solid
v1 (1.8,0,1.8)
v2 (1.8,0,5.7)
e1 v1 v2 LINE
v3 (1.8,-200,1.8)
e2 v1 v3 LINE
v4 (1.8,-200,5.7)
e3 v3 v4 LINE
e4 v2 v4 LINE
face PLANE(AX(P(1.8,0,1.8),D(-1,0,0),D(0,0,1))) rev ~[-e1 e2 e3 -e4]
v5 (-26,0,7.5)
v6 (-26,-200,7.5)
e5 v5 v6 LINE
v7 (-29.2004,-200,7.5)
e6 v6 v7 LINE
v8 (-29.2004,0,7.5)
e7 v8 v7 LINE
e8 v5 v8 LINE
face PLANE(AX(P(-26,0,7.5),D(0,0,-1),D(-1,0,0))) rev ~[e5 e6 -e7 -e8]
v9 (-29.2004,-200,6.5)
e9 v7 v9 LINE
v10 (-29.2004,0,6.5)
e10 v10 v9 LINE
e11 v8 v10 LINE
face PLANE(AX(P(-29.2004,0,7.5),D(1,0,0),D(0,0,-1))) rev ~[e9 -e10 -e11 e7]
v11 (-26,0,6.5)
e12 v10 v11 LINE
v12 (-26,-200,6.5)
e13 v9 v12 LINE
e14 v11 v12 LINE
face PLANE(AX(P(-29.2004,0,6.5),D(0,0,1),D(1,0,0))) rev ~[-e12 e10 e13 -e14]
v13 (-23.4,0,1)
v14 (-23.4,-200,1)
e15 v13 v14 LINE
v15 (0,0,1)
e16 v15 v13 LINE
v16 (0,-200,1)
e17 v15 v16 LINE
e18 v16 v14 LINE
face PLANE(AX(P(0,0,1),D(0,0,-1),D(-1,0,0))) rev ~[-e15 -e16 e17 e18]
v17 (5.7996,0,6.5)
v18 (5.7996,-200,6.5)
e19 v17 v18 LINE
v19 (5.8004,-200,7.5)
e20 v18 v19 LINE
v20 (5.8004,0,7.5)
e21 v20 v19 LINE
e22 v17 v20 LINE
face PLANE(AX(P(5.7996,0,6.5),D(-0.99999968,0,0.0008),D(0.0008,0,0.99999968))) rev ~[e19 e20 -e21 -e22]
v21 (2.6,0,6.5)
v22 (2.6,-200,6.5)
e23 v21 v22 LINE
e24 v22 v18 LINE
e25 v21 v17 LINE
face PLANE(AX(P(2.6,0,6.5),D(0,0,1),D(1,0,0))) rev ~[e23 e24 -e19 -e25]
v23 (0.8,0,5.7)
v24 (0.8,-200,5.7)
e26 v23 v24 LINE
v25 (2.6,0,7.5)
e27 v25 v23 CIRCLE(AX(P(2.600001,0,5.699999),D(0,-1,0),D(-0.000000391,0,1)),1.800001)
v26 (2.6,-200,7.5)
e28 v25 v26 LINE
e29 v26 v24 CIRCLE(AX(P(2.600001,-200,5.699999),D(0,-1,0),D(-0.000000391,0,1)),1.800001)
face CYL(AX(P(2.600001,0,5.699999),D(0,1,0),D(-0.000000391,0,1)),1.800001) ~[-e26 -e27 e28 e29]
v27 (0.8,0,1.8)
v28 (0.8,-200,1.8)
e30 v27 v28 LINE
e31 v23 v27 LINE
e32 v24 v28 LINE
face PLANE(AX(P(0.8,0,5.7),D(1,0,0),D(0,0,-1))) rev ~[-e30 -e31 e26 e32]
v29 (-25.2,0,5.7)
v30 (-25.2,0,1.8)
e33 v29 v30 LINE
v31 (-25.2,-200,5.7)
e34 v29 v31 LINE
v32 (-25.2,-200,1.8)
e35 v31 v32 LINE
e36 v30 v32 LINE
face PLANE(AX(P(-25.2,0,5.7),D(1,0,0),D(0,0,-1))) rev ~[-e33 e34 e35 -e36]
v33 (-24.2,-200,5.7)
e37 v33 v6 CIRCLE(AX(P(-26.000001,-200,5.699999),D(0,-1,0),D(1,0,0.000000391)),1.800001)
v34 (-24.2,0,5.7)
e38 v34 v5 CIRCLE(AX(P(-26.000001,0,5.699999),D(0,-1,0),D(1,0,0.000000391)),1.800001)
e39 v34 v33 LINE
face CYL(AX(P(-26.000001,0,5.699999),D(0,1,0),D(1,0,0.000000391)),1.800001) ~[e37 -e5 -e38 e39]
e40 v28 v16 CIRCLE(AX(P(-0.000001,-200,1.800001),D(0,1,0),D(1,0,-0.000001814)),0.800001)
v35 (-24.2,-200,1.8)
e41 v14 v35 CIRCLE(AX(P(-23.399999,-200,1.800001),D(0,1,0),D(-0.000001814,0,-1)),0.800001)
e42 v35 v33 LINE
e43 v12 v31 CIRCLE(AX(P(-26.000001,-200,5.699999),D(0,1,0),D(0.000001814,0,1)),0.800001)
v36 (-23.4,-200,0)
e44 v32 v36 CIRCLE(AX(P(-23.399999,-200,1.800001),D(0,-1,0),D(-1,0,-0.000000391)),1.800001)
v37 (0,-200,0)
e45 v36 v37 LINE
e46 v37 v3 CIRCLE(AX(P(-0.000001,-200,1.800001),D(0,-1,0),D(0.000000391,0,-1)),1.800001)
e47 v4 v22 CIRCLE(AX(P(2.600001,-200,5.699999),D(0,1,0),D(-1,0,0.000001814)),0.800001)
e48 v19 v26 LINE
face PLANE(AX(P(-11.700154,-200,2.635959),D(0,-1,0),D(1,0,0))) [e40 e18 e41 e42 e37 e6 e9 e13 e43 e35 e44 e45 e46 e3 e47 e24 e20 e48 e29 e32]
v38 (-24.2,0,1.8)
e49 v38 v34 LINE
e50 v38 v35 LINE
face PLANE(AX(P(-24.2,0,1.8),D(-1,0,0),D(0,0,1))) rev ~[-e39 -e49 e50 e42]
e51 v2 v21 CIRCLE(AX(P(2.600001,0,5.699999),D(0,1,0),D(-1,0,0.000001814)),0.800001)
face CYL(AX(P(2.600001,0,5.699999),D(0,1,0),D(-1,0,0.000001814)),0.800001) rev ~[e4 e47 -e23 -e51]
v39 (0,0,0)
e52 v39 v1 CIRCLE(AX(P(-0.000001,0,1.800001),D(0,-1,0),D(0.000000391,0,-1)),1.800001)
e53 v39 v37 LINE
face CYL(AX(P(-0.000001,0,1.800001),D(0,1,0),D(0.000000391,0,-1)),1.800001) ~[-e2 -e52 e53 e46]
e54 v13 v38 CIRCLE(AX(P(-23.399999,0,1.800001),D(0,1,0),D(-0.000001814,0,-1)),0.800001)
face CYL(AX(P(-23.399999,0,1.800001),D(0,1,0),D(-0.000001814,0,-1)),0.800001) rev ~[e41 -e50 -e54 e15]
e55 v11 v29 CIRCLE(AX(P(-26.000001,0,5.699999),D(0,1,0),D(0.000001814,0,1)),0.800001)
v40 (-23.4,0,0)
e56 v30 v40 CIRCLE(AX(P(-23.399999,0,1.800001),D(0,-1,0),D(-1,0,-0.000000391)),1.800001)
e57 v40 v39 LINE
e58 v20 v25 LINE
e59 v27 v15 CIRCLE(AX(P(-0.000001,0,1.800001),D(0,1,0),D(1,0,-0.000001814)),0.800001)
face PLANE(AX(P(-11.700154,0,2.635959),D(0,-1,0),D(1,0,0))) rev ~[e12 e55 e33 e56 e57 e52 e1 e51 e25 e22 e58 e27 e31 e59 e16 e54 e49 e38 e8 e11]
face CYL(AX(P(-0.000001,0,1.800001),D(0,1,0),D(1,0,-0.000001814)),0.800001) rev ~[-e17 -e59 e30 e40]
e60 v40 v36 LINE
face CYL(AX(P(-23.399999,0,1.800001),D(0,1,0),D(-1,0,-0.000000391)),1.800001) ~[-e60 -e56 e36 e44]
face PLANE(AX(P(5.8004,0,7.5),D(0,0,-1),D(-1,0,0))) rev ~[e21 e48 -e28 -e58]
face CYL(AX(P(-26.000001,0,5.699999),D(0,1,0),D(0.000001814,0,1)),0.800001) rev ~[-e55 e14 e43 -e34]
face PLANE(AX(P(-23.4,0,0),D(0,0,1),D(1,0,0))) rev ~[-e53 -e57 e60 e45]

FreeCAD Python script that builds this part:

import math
import FreeCAD as App
import Part
import Sketcher
Q = App.Units.Quantity

doc = App.newDocument("Part")
params = doc.addObject("Spreadsheet::Sheet", "Params")
for row, (alias, value) in enumerate([
    ("sketch1_radius", "1.800001 mm"),
    ("sketch1_radius2", "0.800001 mm"),
    ("sketch1_width", "23.4 mm"),
    ("sketch1_height", "3.9 mm"),
    ("pad1_length", "200 mm"),
], start=1):
    params.set(f"A{row}", alias)
    params.set(f"B{row}", "=" + value)
    params.setAlias(f"B{row}", alias)

body = doc.addObject("PartDesign::Body", "Body")

sketch1 = doc.addObject("Sketcher::SketchObject", "Sketch")
body.addObject(sketch1)
sketch1.AttachmentSupport = (doc.XZ_Plane, [""])
sketch1.MapMode = "FlatFace"
sketch1.addGeometry(Part.LineSegment(App.Vector(-23.4, 0, 0), App.Vector(0, 0, 0)), False)
sketch1.addGeometry(Part.ArcOfCircle(Part.Circle(App.Vector(0, 1.8, 0), App.Vector(0, 0, 1), 1.8), math.radians(-90), math.radians(0)), False)
sketch1.addGeometry(Part.LineSegment(App.Vector(1.8, 1.8, 0), App.Vector(1.8, 5.7, 0)), False)
sketch1.addGeometry(Part.ArcOfCircle(Part.Circle(App.Vector(2.6, 5.7, 0), App.Vector(0, 0, 1), 0.8), math.radians(90), math.radians(180)), False)
sketch1.addGeometry(Part.LineSegment(App.Vector(2.6, 6.5, 0), App.Vector(5.8, 6.5, 0)), False)
sketch1.addGeometry(Part.LineSegment(App.Vector(5.8, 6.5, 0), App.Vector(5.8, 7.5, 0)), False)
sketch1.addGeometry(Part.LineSegment(App.Vector(5.8, 7.5, 0), App.Vector(2.6, 7.5, 0)), False)
sketch1.addGeometry(Part.ArcOfCircle(Part.Circle(App.Vector(2.6, 5.7, 0), App.Vector(0, 0, 1), 1.8), math.radians(90), math.radians(180)), False)
sketch1.addGeometry(Part.LineSegment(App.Vector(0.8, 5.7, 0), App.Vector(0.8, 1.8, 0)), False)
sketch1.addGeometry(Part.ArcOfCircle(Part.Circle(App.Vector(0, 1.8, 0), App.Vector(0, 0, 1), 0.8), math.radians(-90), math.radians(0)), False)
sketch1.addGeometry(Part.LineSegment(App.Vector(0, 1, 0), App.Vector(-23.4, 1, 0)), False)
sketch1.addGeometry(Part.ArcOfCircle(Part.Circle(App.Vector(-23.4, 1.8, 0), App.Vector(0, 0, 1), 0.8), math.radians(-180), math.radians(-90)), False)
sketch1.addGeometry(Part.LineSegment(App.Vector(-24.2, 1.8, 0), App.Vector(-24.2, 5.7, 0)), False)
sketch1.addGeometry(Part.ArcOfCircle(Part.Circle(App.Vector(-26, 5.7, 0), App.Vector(0, 0, 1), 1.8), math.radians(0), math.radians(90)), False)
sketch1.addGeometry(Part.LineSegment(App.Vector(-26, 7.5, 0), App.Vector(-29.2, 7.5, 0)), False)
sketch1.addGeometry(Part.LineSegment(App.Vector(-29.2, 7.5, 0), App.Vector(-29.2, 6.5, 0)), False)
sketch1.addGeometry(Part.LineSegment(App.Vector(-29.2, 6.5, 0), App.Vector(-26, 6.5, 0)), False)
sketch1.addGeometry(Part.ArcOfCircle(Part.Circle(App.Vector(-26, 5.7, 0), App.Vector(0, 0, 1), 0.8), math.radians(0), math.radians(90)), False)
sketch1.addGeometry(Part.LineSegment(App.Vector(-25.2, 5.7, 0), App.Vector(-25.2, 1.8, 0)), False)
sketch1.addGeometry(Part.ArcOfCircle(Part.Circle(App.Vector(-23.4, 1.8, 0), App.Vector(0, 0, 1), 1.8), math.radians(-180), math.radians(-90)), False)
sketch1.addConstraint(Sketcher.Constraint("Tangent", 0, 2, 1, 1))
sketch1.addConstraint(Sketcher.Constraint("Tangent", 1, 2, 2, 1))
sketch1.addConstraint(Sketcher.Constraint("Tangent", 2, 2, 3, 2))
sketch1.addConstraint(Sketcher.Constraint("Tangent", 3, 1, 4, 1))
sketch1.addConstraint(Sketcher.Constraint("Coincident", 4, 2, 5, 1))
sketch1.addConstraint(Sketcher.Constraint("Coincident", 5, 2, 6, 1))
sketch1.addConstraint(Sketcher.Constraint("Tangent", 6, 2, 7, 1))
sketch1.addConstraint(Sketcher.Constraint("Tangent", 7, 2, 8, 1))
sketch1.addConstraint(Sketcher.Constraint("Tangent", 8, 2, 9, 2))
sketch1.addConstraint(Sketcher.Constraint("Tangent", 9, 1, 10, 1))
sketch1.addConstraint(Sketcher.Constraint("Tangent", 10, 2, 11, 2))
sketch1.addConstraint(Sketcher.Constraint("Tangent", 11, 1, 12, 1))
sketch1.addConstraint(Sketcher.Constraint("Tangent", 12, 2, 13, 1))
sketch1.addConstraint(Sketcher.Constraint("Tangent", 13, 2, 14, 1))
sketch1.addConstraint(Sketcher.Constraint("Coincident", 14, 2, 15, 1))
sketch1.addConstraint(Sketcher.Constraint("Coincident", 15, 2, 16, 1))
sketch1.addConstraint(Sketcher.Constraint("Tangent", 16, 2, 17, 2))
sketch1.addConstraint(Sketcher.Constraint("Tangent", 17, 1, 18, 1))
sketch1.addConstraint(Sketcher.Constraint("Tangent", 18, 2, 19, 1))
sketch1.addConstraint(Sketcher.Constraint("Tangent", 19, 2, 0, 1))
sketch1.addConstraint(Sketcher.Constraint("Horizontal", 0))
sketch1.addConstraint(Sketcher.Constraint("Vertical", 2))
sketch1.addConstraint(Sketcher.Constraint("Horizontal", 4))
sketch1.addConstraint(Sketcher.Constraint("Horizontal", 6))
sketch1.addConstraint(Sketcher.Constraint("Vertical", 8))
sketch1.addConstraint(Sketcher.Constraint("Horizontal", 10))
sketch1.addConstraint(Sketcher.Constraint("Vertical", 12))
sketch1.addConstraint(Sketcher.Constraint("Horizontal", 14))
sketch1.addConstraint(Sketcher.Constraint("Vertical", 15))
sketch1.addConstraint(Sketcher.Constraint("Horizontal", 16))
sketch1.addConstraint(Sketcher.Constraint("Vertical", 18))
sketch1.addConstraint(Sketcher.Constraint("Coincident", 0, 2, -1, 1))
sketch1.addConstraint(Sketcher.Constraint("Coincident", 7, 3, 3, 3))
sketch1.addConstraint(Sketcher.Constraint("Coincident", 9, 3, 1, 3))
sketch1.addConstraint(Sketcher.Constraint("Coincident", 17, 3, 13, 3))
sketch1.addConstraint(Sketcher.Constraint("Coincident", 19, 3, 11, 3))
sketch1.addConstraint(Sketcher.Constraint("Equal", 1, 7))
sketch1.addConstraint(Sketcher.Constraint("Equal", 9, 11))
sketch1.addConstraint(Sketcher.Constraint("Equal", 7, 13))
sketch1.addConstraint(Sketcher.Constraint("Horizontal", 7, 3, 13, 3))
sketch1.addConstraint(Sketcher.Constraint("Equal", 6, 14))
sketch1.addConstraint(Sketcher.Constraint("Radius", 1, Q("1.800001 mm")))
sketch1.addConstraint(Sketcher.Constraint("Radius", 3, Q("0.800001 mm")))
sketch1.addConstraint(Sketcher.Constraint("DistanceX", 0, 1, 0, 2, Q("23.4 mm")))
sketch1.addConstraint(Sketcher.Constraint("DistanceY", 2, 1, 2, 2, Q("3.9 mm")))
sketch1.addConstraint(Sketcher.Constraint("DistanceX", 4, 1, 4, 2, Q("3.1996 mm")))
sketch1.addConstraint(Sketcher.Constraint("DistanceX", 6, 2, 6, 1, Q("3.2004 mm")))
sketch1.setExpression("Constraints[41]", "Params.sketch1_radius")
sketch1.setExpression("Constraints[42]", "Params.sketch1_radius2")
sketch1.setExpression("Constraints[43]", "Params.sketch1_width")
sketch1.setExpression("Constraints[44]", "Params.sketch1_height")
pad1 = doc.addObject("PartDesign::Pad", "Pad")
body.addObject(pad1)
pad1.Profile = sketch1
pad1.setExpression("Length", "Params.pad1_length")

doc.recompute()
